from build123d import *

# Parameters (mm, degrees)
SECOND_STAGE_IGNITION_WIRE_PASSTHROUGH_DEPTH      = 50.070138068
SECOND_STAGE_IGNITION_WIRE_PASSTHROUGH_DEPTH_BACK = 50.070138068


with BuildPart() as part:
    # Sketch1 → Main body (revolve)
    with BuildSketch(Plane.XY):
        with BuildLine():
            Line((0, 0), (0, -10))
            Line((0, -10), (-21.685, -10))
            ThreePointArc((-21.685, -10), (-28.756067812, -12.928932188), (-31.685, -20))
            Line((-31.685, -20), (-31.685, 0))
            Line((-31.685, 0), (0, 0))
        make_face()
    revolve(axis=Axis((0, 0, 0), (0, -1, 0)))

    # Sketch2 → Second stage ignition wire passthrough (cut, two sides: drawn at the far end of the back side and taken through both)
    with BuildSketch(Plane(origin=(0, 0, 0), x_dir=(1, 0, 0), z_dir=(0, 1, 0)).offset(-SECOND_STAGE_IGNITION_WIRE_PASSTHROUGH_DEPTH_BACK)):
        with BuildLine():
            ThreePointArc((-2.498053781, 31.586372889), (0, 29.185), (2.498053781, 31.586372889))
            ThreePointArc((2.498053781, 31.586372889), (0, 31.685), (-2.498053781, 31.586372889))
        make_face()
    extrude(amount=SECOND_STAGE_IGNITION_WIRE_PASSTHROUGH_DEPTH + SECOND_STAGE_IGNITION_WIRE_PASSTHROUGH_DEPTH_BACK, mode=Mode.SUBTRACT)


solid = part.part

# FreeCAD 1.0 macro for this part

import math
import FreeCAD as App
import Part
import Sketcher

doc = App.newDocument("Part")
params = doc.addObject("Spreadsheet::Sheet", "Params")
for row, (alias, value) in enumerate([
    ("sketch1_radius", "10 mm"),
    ("sketch1_height", "10 mm"),
    ("revolution_angle", "360 deg"),
    ("sketch2_radius", "2.5 mm"),
], start=1):
    params.set(f"A{row}", alias)
    params.set(f"B{row}", "=" + value)
    params.setAlias(f"B{row}", alias)

body = doc.addObject("PartDesign::Body", "Body")

# Sketch on XY plane
sketch1 = body.newObject("Sketcher::SketchObject", "Sketch")
sketch1.AttachmentSupport = (doc.getObject("XY_Plane"), [""])
sketch1.MapMode = "FlatFace"
sketch1.addGeometry(Part.LineSegment(App.Vector(0, -10, 0), App.Vector(0, 0, 0)), False)
sketch1.addGeometry(Part.LineSegment(App.Vector(0, 0, 0), App.Vector(-31.685, 0, 0)), False)
sketch1.addGeometry(Part.LineSegment(App.Vector(-31.685, 0, 0), App.Vector(-31.685, -20, 0)), False)
sketch1.addGeometry(Part.ArcOfCircle(Part.Circle(App.Vector(-21.685, -20, 0), App.Vector(0, 0, 1), 10), math.radians(90), math.radians(180)), False)
sketch1.addGeometry(Part.LineSegment(App.Vector(-21.685, -10, 0), App.Vector(0, -10, 0)), False)
sketch1.addConstraint(Sketcher.Constraint("Coincident", 0, 2, 1, 1))
sketch1.addConstraint(Sketcher.Constraint("Coincident", 1, 2, 2, 1))
sketch1.addConstraint(Sketcher.Constraint("Tangent", 2, 2, 3, 2))
sketch1.addConstraint(Sketcher.Constraint("Tangent", 3, 1, 4, 1))
sketch1.addConstraint(Sketcher.Constraint("Coincident", 4, 2, 0, 1))
sketch1.addConstraint(Sketcher.Constraint("Vertical", 0))
sketch1.addConstraint(Sketcher.Constraint("Horizontal", 1))
sketch1.addConstraint(Sketcher.Constraint("Vertical", 2))
sketch1.addConstraint(Sketcher.Constraint("Horizontal", 4))
sketch1.addConstraint(Sketcher.Constraint("Coincident", 0, 2, -1, 1))
sketch1.addConstraint(Sketcher.Constraint("Radius", 3, 10.0))
sketch1.addConstraint(Sketcher.Constraint("DistanceY", 0, 1, 0, 2, 10.0))
sketch1.addConstraint(Sketcher.Constraint("DistanceX", 1, 2, 1, 1, 31.685))
sketch1.setExpression("Constraints[10]", "Params.sketch1_radius")
sketch1.setExpression("Constraints[11]", "Params.sketch1_height")
revolution = body.newObject("PartDesign::Revolution", "Revolution")
revolution.Profile = sketch1
revolution.ReferenceAxis = (sketch1, ["V_Axis"])
revolution.setExpression("Angle", "Params.revolution_angle")

# Sketch on XZ plane
sketch2 = body.newObject("Sketcher::SketchObject", "Sketch001")
sketch2.AttachmentSupport = (doc.getObject("XZ_Plane"), [""])
sketch2.MapMode = "FlatFace"
sketch2.addGeometry(Part.ArcOfCircle(Part.Circle(App.Vector(0, -31.685, 0), App.Vector(0, 0, 1), 2.5), math.radians(2.260954), math.radians(177.739046)), False)
sketch2.addGeometry(Part.ArcOfCircle(Part.Circle(App.Vector(0, 0, 0), App.Vector(0, 0, 1), 31.685), math.radians(-94.521907), math.radians(-85.478093)), False)
sketch2.addConstraint(Sketcher.Constraint("Coincident", 0, 1, 1, 2))
sketch2.addConstraint(Sketcher.Constraint("Coincident", 1, 1, 0, 2))
sketch2.addConstraint(Sketcher.Constraint("Coincident", 1, 3, -1, 1))
sketch2.addConstraint(Sketcher.Constraint("PointOnObject", 0, 3, -2))
sketch2.addConstraint(Sketcher.Constraint("Radius", 0, 2.5))
sketch2.addConstraint(Sketcher.Constraint("Radius", 1, 31.685))
sketch2.addConstraint(Sketcher.Constraint("DistanceY", 0, 3, -1, 1, 31.685))
sketch2.setExpression("Constraints[4]", "Params.sketch2_radius")
pocket1 = body.newObject("PartDesign::Pocket", "Pocket")
pocket1.Profile = sketch2
pocket1.Type = "ThroughAll"
pocket1.Midplane = True

doc.recompute()
